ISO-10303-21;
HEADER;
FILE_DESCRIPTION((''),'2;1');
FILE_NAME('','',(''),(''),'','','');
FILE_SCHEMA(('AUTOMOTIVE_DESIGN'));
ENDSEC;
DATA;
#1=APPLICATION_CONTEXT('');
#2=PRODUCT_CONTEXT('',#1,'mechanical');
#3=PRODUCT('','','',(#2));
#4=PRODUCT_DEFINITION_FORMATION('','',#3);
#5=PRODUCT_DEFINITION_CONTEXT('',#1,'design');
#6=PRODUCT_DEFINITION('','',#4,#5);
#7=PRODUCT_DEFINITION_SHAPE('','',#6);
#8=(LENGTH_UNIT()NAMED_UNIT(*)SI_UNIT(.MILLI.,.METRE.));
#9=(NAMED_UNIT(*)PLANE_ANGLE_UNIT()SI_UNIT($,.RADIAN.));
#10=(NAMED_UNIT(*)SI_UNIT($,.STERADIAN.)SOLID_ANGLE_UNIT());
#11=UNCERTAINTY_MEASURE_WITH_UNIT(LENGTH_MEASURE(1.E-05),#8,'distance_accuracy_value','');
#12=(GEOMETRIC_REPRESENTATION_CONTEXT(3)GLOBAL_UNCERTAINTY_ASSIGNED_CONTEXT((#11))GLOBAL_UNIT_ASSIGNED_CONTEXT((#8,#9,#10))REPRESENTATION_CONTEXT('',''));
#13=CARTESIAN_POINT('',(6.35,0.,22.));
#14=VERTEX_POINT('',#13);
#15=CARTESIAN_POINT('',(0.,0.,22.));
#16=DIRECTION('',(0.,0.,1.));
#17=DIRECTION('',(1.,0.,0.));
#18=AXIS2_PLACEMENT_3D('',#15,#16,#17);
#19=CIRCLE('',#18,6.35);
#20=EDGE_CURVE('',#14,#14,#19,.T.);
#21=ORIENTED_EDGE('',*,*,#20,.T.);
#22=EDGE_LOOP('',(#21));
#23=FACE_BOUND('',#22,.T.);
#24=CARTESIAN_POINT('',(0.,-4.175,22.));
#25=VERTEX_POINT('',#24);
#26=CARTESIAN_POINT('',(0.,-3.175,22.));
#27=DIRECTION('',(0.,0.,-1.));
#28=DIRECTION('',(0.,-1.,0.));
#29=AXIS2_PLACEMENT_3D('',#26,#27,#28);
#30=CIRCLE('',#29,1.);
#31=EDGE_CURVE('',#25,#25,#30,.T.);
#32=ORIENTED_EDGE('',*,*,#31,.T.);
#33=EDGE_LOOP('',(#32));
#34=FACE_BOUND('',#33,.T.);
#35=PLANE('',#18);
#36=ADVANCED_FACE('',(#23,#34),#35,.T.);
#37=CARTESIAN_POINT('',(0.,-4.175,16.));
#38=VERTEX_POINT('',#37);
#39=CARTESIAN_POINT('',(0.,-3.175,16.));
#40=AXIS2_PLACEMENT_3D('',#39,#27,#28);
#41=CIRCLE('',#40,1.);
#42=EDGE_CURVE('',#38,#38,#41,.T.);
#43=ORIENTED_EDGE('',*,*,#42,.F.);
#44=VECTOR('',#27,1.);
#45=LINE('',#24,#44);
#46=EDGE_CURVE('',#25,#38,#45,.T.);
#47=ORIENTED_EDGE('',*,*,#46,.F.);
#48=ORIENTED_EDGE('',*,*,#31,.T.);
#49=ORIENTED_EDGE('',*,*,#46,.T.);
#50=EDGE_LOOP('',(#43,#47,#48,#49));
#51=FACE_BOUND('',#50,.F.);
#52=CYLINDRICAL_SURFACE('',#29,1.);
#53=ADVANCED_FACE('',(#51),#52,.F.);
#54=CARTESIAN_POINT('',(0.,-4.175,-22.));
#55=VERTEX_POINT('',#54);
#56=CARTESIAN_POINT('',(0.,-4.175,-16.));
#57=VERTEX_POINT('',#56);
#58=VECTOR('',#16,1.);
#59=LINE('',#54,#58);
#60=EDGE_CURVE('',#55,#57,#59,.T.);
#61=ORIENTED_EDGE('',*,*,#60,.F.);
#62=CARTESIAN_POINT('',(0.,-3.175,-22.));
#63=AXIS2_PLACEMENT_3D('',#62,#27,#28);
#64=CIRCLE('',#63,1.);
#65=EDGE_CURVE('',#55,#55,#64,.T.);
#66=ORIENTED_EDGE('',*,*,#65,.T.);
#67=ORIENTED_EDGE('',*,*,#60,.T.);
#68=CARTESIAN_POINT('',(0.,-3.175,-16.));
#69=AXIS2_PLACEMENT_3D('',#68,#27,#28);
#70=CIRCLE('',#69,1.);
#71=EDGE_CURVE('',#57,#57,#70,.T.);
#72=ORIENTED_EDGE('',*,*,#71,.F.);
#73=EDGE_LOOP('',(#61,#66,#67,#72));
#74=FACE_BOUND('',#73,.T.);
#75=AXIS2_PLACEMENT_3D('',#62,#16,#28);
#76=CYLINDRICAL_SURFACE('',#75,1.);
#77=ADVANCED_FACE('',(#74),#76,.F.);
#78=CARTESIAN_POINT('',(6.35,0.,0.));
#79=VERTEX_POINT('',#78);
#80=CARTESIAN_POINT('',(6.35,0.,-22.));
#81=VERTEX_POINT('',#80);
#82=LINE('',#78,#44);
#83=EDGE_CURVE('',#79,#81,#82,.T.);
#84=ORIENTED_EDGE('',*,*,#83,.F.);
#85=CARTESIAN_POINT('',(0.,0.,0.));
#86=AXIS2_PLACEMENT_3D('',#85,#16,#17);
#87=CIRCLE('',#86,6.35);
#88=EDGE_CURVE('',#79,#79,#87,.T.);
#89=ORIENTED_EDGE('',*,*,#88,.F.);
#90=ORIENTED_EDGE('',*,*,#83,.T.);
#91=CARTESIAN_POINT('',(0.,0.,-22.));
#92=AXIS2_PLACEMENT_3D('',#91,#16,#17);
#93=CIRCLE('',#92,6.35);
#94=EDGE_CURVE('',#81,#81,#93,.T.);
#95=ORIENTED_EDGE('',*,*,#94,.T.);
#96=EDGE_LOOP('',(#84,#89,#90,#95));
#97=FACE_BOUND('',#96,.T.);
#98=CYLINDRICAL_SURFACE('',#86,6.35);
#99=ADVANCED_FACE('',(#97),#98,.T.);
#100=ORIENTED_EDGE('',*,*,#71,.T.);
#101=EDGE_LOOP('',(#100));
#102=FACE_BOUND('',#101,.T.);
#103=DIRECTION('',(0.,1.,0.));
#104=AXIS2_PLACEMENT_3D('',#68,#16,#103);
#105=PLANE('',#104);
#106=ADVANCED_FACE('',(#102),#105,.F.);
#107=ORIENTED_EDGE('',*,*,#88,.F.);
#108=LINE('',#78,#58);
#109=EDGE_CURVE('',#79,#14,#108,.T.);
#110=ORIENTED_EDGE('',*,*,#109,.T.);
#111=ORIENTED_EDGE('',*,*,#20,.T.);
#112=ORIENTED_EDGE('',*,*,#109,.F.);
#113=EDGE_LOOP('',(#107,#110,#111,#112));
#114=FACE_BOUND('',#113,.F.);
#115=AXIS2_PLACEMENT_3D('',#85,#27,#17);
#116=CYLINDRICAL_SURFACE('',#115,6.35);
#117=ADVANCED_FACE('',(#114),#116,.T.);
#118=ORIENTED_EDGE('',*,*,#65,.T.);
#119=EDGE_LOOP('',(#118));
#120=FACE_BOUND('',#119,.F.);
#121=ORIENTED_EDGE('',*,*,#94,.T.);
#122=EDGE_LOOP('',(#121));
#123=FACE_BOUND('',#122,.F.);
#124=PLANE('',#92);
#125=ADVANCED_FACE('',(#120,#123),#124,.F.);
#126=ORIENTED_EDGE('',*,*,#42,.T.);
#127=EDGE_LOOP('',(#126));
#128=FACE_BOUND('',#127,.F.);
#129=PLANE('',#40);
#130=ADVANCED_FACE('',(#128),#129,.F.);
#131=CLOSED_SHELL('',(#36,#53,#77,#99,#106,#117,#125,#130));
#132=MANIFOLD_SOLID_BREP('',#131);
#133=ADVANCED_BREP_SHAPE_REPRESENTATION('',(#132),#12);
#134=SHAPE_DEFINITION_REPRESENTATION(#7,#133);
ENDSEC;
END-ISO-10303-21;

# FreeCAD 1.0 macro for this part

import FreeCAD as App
import Part
import Sketcher

V = App.Vector
Q = App.Units.Quantity

doc = App.newDocument("Part")
body = doc.addObject("PartDesign::Body", "Body")

# Sketch on XY plane
sketch1 = doc.addObject("Sketcher::SketchObject", "Sketch")
body.addObject(sketch1)
sketch1.AttachmentSupport = (doc.XY_Plane, [""])
sketch1.MapMode = "FlatFace"
sketch1.addGeometry(Part.Circle(V(0, 0, 0), V(0, 0, 1), 6), False)
sketch1.addConstraint(Sketcher.Constraint("Coincident", 0, 3, -1, 1))
sketch1.addConstraint(Sketcher.Constraint("Diameter", 0, Q("12.7 mm")))
pad1 = doc.addObject("PartDesign::Pad", "Pad")
body.addObject(pad1)
pad1.Profile = sketch1
pad1.Length = 44
pad1.Midplane = True

# Sketch on XY plane
sketch2 = doc.addObject("Sketcher::SketchObject", "Sketch001")
body.addObject(sketch2)
sketch2.AttachmentSupport = (doc.XY_Plane, [""])
sketch2.MapMode = "FlatFace"
sketch2.AttachmentOffset = App.Placement(V(0, 0, 22), App.Rotation())
sketch2.addGeometry(Part.Circle(V(0, -3.2, 0), V(0, 0, 1), 1), False)
sketch2.addConstraint(Sketcher.Constraint("PointOnObject", 0, 3, -2))
sketch2.addConstraint(Sketcher.Constraint("Diameter", 0, Q("2 mm")))
sketch2.addConstraint(Sketcher.Constraint("DistanceY", 0, 3, -1, 1, Q("3.175 mm")))
doc.recompute()
hole = doc.addObject("PartDesign::Hole", "Hole")
body.addObject(hole)
hole.Profile = sketch2
hole.ThreadType = "None"
hole.Diameter = 2
hole.DepthType = "Dimension"
hole.Depth = 6
hole.DrillPoint = "Flat"
doc.recompute()

mirrored = doc.addObject("PartDesign::Mirrored", "Mirrored")
body.addObject(mirrored)
mirrored.Originals = [hole]
mirrored.MirrorPlane = (doc.XY_Plane, [""])
body.Tip = mirrored

doc.recompute()
